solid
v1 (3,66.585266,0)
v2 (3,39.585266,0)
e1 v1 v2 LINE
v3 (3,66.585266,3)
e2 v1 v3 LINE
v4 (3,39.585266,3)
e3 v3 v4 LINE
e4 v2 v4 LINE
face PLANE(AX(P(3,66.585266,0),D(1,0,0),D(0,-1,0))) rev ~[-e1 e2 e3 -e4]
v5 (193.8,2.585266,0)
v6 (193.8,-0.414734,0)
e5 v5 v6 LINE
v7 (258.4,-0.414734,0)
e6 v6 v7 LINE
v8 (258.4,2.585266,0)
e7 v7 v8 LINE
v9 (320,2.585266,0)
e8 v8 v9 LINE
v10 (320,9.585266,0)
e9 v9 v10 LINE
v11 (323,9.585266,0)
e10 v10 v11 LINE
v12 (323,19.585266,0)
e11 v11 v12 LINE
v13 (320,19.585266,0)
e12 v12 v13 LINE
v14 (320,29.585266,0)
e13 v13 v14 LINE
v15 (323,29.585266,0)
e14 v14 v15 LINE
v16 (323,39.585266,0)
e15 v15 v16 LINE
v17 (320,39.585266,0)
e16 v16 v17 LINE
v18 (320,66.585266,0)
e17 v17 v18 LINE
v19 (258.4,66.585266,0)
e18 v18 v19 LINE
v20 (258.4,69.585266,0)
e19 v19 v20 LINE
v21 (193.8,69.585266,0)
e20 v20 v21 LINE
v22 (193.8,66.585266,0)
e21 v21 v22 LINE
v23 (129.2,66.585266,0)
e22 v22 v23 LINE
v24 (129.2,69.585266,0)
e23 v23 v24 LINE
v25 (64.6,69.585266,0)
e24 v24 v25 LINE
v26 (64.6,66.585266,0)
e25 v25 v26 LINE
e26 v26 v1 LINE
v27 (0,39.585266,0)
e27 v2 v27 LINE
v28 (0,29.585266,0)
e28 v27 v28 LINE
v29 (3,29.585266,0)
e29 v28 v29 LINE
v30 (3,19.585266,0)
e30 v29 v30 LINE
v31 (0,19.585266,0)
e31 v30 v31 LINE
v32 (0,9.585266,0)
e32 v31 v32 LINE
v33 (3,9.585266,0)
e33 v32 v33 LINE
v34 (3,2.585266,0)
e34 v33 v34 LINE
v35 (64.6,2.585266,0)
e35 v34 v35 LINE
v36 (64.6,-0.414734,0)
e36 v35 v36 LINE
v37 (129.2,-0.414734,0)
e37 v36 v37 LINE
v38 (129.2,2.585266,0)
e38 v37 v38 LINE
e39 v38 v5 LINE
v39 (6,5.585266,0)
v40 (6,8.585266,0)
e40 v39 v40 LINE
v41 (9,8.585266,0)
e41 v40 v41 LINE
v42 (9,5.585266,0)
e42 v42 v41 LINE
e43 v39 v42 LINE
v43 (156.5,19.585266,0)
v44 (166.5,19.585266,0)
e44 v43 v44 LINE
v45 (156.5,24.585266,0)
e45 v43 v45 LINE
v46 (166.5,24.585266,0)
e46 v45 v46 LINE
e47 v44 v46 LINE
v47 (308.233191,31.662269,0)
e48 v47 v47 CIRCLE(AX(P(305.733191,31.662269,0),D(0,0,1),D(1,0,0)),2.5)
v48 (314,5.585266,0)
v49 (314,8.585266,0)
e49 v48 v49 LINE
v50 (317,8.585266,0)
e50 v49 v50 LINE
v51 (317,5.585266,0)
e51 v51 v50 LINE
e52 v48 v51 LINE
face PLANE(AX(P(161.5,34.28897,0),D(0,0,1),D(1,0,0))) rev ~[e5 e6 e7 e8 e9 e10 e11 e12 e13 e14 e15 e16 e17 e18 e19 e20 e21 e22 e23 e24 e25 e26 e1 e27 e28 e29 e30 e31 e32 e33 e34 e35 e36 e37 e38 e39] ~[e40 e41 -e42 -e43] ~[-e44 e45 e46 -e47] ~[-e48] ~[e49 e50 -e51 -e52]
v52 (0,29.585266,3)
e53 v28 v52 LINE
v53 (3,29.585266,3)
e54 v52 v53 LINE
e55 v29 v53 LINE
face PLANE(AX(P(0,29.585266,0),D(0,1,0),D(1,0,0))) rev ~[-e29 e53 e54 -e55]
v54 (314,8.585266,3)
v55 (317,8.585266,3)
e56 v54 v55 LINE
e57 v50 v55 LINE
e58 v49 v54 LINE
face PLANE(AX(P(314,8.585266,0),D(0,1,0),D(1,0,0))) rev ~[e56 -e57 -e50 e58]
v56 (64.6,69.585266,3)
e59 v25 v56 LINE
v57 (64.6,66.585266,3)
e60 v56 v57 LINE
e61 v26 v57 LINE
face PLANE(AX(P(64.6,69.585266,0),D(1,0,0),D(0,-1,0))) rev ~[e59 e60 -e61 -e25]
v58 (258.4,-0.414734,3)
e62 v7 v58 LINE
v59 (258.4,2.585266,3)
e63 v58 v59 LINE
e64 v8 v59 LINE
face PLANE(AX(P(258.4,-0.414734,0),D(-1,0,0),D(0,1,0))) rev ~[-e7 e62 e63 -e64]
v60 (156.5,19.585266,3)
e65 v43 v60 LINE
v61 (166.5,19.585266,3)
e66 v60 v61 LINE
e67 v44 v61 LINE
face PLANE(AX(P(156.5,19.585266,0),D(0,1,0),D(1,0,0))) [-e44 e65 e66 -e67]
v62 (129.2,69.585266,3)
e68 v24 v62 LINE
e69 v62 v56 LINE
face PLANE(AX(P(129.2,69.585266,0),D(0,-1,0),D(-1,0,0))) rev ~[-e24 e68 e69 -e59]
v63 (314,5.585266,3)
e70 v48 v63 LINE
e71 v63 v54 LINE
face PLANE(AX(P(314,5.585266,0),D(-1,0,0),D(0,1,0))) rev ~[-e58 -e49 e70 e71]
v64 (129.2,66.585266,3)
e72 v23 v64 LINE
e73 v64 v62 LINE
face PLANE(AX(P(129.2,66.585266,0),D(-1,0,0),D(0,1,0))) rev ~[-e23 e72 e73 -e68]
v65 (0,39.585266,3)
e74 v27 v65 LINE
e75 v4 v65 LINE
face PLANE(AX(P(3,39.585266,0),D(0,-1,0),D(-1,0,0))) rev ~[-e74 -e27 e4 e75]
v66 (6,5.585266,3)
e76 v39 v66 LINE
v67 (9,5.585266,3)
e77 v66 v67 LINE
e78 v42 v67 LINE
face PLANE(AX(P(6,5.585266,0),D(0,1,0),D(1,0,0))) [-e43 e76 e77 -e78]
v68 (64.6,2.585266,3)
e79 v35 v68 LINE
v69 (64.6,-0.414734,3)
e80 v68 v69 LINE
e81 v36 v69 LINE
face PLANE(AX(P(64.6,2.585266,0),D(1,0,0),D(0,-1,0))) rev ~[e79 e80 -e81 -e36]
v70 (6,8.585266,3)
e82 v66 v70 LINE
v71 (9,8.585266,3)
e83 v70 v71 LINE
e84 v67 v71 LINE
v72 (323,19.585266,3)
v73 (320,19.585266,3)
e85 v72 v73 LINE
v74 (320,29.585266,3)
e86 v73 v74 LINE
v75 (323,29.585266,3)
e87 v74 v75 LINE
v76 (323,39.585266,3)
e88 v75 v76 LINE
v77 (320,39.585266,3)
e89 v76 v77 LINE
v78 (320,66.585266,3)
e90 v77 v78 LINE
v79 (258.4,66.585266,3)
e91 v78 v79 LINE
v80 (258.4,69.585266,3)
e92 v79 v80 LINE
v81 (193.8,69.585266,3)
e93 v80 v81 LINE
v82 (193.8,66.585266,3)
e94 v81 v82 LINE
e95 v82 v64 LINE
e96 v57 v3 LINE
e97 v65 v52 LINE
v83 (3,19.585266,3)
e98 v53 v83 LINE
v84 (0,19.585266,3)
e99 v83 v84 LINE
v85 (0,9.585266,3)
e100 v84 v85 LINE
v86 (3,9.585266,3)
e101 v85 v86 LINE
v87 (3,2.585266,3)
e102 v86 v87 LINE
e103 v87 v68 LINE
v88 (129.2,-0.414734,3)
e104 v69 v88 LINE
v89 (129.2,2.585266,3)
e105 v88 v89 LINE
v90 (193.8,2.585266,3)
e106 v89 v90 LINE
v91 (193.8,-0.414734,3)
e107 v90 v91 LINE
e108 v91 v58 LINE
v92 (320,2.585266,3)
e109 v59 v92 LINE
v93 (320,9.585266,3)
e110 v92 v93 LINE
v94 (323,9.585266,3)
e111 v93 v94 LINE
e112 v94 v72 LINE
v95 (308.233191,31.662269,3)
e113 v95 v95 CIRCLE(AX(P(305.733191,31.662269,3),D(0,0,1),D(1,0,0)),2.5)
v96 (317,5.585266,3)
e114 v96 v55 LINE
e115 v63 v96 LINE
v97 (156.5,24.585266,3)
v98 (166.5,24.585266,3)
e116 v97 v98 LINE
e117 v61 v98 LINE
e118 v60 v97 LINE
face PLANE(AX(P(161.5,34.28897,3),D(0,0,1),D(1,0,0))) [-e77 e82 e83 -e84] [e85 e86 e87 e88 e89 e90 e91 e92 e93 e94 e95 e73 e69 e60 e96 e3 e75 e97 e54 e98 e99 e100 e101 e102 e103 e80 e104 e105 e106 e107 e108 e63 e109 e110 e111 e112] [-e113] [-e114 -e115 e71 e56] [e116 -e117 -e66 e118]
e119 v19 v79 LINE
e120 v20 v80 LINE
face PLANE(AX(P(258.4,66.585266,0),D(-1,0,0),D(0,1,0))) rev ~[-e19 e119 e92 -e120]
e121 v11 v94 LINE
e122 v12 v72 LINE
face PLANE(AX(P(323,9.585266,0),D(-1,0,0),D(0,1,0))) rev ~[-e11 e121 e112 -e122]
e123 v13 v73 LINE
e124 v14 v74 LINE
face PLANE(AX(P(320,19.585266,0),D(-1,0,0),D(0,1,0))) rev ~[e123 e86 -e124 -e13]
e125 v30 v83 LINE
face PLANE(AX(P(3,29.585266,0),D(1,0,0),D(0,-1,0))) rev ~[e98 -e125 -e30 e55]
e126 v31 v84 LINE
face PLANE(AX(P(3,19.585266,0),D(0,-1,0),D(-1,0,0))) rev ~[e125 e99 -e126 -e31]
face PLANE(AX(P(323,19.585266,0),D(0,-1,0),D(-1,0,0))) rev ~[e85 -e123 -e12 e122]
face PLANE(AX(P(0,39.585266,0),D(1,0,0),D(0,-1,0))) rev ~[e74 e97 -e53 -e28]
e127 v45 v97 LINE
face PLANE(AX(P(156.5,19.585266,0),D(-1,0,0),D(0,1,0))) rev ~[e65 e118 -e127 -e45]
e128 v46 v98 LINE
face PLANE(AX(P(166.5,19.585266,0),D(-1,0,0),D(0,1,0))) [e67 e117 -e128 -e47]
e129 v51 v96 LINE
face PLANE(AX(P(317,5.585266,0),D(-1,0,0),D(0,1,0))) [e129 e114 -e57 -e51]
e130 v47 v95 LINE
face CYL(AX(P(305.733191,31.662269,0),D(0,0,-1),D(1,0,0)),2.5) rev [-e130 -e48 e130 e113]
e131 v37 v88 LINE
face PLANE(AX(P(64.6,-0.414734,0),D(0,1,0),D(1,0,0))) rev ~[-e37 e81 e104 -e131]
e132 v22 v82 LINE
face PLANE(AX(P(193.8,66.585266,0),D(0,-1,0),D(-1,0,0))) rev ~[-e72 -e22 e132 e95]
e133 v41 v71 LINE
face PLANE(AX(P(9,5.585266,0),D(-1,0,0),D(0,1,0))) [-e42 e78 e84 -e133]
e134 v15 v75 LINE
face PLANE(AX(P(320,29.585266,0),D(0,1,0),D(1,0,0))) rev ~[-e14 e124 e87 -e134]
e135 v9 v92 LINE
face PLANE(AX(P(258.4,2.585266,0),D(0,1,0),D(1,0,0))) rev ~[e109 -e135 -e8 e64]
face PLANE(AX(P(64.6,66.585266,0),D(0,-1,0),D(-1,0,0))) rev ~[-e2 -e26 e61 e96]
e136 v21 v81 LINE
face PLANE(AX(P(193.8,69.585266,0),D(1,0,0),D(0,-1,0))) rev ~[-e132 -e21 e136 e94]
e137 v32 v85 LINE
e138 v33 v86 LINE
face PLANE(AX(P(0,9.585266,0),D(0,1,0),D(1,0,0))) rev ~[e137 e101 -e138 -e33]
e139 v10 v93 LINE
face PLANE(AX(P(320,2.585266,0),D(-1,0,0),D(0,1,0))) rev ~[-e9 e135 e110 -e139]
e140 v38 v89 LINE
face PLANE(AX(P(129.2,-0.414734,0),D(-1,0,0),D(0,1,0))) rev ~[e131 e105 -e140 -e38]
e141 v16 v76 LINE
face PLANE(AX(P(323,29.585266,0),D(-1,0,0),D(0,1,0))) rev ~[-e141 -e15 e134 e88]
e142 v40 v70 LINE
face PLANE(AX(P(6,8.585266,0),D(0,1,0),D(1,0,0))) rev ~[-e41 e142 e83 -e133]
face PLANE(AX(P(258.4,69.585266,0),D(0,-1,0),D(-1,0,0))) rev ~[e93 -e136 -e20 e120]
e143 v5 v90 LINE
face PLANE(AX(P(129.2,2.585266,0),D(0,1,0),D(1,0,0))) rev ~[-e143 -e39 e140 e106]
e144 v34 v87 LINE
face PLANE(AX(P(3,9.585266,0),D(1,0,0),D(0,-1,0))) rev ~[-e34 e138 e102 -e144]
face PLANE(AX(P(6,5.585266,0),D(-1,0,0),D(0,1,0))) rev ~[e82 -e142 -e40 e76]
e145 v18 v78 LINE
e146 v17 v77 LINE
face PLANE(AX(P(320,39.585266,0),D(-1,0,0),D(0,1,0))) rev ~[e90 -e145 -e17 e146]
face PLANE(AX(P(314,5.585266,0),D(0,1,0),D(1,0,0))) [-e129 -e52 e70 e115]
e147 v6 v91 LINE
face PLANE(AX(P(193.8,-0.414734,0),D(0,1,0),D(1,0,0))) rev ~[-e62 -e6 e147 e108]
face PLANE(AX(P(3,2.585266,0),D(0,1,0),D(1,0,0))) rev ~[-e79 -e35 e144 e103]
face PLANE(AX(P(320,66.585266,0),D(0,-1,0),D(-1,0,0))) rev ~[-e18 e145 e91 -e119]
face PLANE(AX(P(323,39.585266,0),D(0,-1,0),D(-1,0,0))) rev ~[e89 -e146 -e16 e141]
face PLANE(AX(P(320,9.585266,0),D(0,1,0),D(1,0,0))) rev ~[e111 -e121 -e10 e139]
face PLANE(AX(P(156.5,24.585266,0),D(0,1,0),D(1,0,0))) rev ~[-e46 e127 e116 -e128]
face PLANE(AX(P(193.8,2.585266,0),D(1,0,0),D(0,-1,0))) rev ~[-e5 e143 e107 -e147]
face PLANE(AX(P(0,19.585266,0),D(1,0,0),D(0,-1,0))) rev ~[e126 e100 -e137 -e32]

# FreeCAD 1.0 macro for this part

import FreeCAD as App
import Part
import Sketcher

V = App.Vector


def add_polygon(sketch, points):
    """Adds a closed chain of lines whose ends are joined by coincident constraints."""
    first, n = sketch.GeometryCount, len(points)
    for a, b in zip(points, points[1:] + points[:1]):
        sketch.addGeometry(Part.LineSegment(App.Vector(*a, 0), App.Vector(*b, 0)), False)
    for i in range(n):
        sketch.addConstraint(Sketcher.Constraint("Coincident", first + i, 2, first + (i + 1) % n, 1))

doc = App.newDocument("Part")
body = doc.addObject("PartDesign::Body", "Body")

sketch1 = doc.addObject("Sketcher::SketchObject", "Sketch")
body.addObject(sketch1)
sketch1.AttachmentSupport = (doc.XY_Plane, [""])
sketch1.MapMode = "FlatFace"
add_polygon(sketch1, [(0, 39.6), (0, 29.6), (3, 29.6), (3, 19.6), (0, 19.6), (0, 9.6), (3, 9.6), (3, 2.6), (64.6, 2.6), (64.6, -0.4), (129.2, -0.4), (129.2, 2.6), (193.8, 2.6), (193.8, -0.4), (258.4, -0.4), (258.4, 2.6), (320, 2.6), (320, 9.6), (323, 9.6), (323, 19.6), (320, 19.6), (320, 29.6), (323, 29.6), (323, 39.6), (320, 39.6), (320, 66.6), (258.4, 66.6), (258.4, 69.6), (193.8, 69.6), (193.8, 66.6), (129.2, 66.6), (129.2, 69.6), (64.6, 69.6), (64.6, 66.6), (3, 66.6), (3, 39.6)])
add_polygon(sketch1, [(9, 5.6), (6, 5.6), (6, 8.6), (9, 8.6)])
add_polygon(sketch1, [(317, 5.6), (314, 5.6), (314, 8.6), (317, 8.6)])
add_polygon(sketch1, [(166.5, 19.6), (156.5, 19.6), (156.5, 24.6), (166.5, 24.6)])
sketch1.addGeometry(Part.Circle(V(305.7, 31.7, 0), V(0, 0, 1), 2.5), False)
sketch1.addConstraint([
    Sketcher.Constraint("Vertical", 0),
    Sketcher.Constraint("Horizontal", 1),
    Sketcher.Constraint("Vertical", 2),
    Sketcher.Constraint("Horizontal", 3),
    Sketcher.Constraint("Vertical", 4),
    Sketcher.Constraint("Horizontal", 5),
    Sketcher.Constraint("Vertical", 6),
    Sketcher.Constraint("Horizontal", 7),
    Sketcher.Constraint("Vertical", 8),
    Sketcher.Constraint("Horizontal", 9),
    Sketcher.Constraint("Vertical", 10),
    Sketcher.Constraint("Horizontal", 11),
    Sketcher.Constraint("Vertical", 12),
    Sketcher.Constraint("Horizontal", 13),
    Sketcher.Constraint("Vertical", 14),
    Sketcher.Constraint("Horizontal", 15),
    Sketcher.Constraint("Vertical", 16),
    Sketcher.Constraint("Horizontal", 17),
    Sketcher.Constraint("Vertical", 18),
    Sketcher.Constraint("Horizontal", 19),
    Sketcher.Constraint("Vertical", 20),
    Sketcher.Constraint("Horizontal", 21),
    Sketcher.Constraint("Vertical", 22),
    Sketcher.Constraint("Horizontal", 23),
    Sketcher.Constraint("Vertical", 24),
    Sketcher.Constraint("Horizontal", 25),
    Sketcher.Constraint("Vertical", 26),
    Sketcher.Constraint("Horizontal", 27),
    Sketcher.Constraint("Vertical", 28),
    Sketcher.Constraint("Horizontal", 29),
    Sketcher.Constraint("Vertical", 30),
    Sketcher.Constraint("Horizontal", 31),
    Sketcher.Constraint("Vertical", 32),
    Sketcher.Constraint("Horizontal", 33),
    Sketcher.Constraint("Vertical", 34),
    Sketcher.Constraint("Horizontal", 35),
    Sketcher.Constraint("Horizontal", 36),
    Sketcher.Constraint("Vertical", 37),
    Sketcher.Constraint("Horizontal", 38),
    Sketcher.Constraint("Vertical", 39),
    Sketcher.Constraint("Horizontal", 40),
    Sketcher.Constraint("Vertical", 41),
    Sketcher.Constraint("Horizontal", 42),
    Sketcher.Constraint("Vertical", 43),
    Sketcher.Constraint("Horizontal", 44),
    Sketcher.Constraint("Vertical", 45),
    Sketcher.Constraint("Horizontal", 46),
    Sketcher.Constraint("Vertical", 47),
    Sketcher.Constraint("PointOnObject", 0, 2, -2),
    Sketcher.Constraint("PointOnObject", 3, 2, -2),
    Sketcher.Constraint("Horizontal", 7, 2, 10, 2),
    Sketcher.Constraint("Horizontal", 9, 2, 12, 2),
    Sketcher.Constraint("Horizontal", 11, 2, 14, 2),
    Sketcher.Constraint("Horizontal", 5, 2, 16, 2),
    Sketcher.Constraint("Horizontal", 3, 2, 18, 2),
    Sketcher.Constraint("Horizontal", 1, 2, 20, 2),
    Sketcher.Constraint("Horizontal", 25, 2, 28, 2),
    Sketcher.Constraint("Horizontal", 27, 2, 30, 2),
    Sketcher.Constraint("Horizontal", 29, 2, 32, 2),
    Sketcher.Constraint("Horizontal", 23, 2, 34, 2),
    Sketcher.Constraint("Horizontal", 39, 2, 40, 2),
    Sketcher.Constraint("Horizontal", 38, 2, 41, 2),
    Sketcher.Constraint("Horizontal", 19, 2, 44, 2),
    Sketcher.Constraint("Vertical", 2, 2, 5, 2),
    Sketcher.Constraint("Vertical", 16, 2, 19, 2),
    Sketcher.Constraint("Vertical", 18, 2, 21, 2),
    Sketcher.Constraint("Vertical", 20, 2, 23, 2),
    Sketcher.Constraint("Vertical", 14, 2, 25, 2),
    Sketcher.Constraint("Vertical", 12, 2, 27, 2),
    Sketcher.Constraint("Vertical", 10, 2, 29, 2),
    Sketcher.Constraint("Vertical", 8, 2, 31, 2),
    Sketcher.Constraint("Vertical", 6, 2, 33, 2),
    Sketcher.Constraint("Equal", 9, 11),
    Sketcher.Constraint("Equal", 11, 13),
    Sketcher.Constraint("Equal", 7, 15),
    Sketcher.Constraint("Equal", 5, 17),
    Sketcher.Constraint("Equal", 35, 36),
    Sketcher.Constraint("Equal", 38, 40),
    Sketcher.Constraint("Equal", 46, 0),
    Sketcher.Constraint("Equal", 0, 2),
    Sketcher.Constraint("Equal", 2, 4),
    Sketcher.Constraint("Equal", 42, 8),
    Sketcher.Constraint("Equal", 14, 26),
    Sketcher.Constraint("Equal", 32, 37),
    Sketcher.Constraint("Diameter", 48, 5.0),
    Sketcher.Constraint("DistanceX", 1, 1, 1, 2, 3.0),
    Sketcher.Constraint("DistanceX", 44, 2, 44, 1, 10.0),
    Sketcher.Constraint("DistanceY", 6, 2, 6, 1, 7.0),
    Sketcher.Constraint("DistanceY", 24, 1, 24, 2, 27.0),
    Sketcher.Constraint("DistanceY", 45, 1, 45, 2, 5.0),
    Sketcher.Constraint("DistanceX", 7, 1, 7, 2, 61.6),
    Sketcher.Constraint("DistanceX", 9, 1, 9, 2, 64.6),
    Sketcher.Constraint("DistanceX", -1, 1, 36, 2, 6.0),
    Sketcher.Constraint("DistanceX", -1, 1, 40, 2, 314.0),
    Sketcher.Constraint("DistanceY", 6, 2, 36, 2, 3.0),
    Sketcher.Constraint("DistanceX", -1, 1, 44, 2, 156.5),
    Sketcher.Constraint("DistanceX", -1, 1, 48, 3, 305.733191),
    Sketcher.Constraint("DistanceY", -1, 1, 48, 3, 31.662269),
    Sketcher.Constraint("DistanceY", -1, 1, 0, 2, 29.585266),
])
pad1 = doc.addObject("PartDesign::Pad", "Pad")
body.addObject(pad1)
pad1.Profile = sketch1
pad1.Length = 3

doc.recompute()
